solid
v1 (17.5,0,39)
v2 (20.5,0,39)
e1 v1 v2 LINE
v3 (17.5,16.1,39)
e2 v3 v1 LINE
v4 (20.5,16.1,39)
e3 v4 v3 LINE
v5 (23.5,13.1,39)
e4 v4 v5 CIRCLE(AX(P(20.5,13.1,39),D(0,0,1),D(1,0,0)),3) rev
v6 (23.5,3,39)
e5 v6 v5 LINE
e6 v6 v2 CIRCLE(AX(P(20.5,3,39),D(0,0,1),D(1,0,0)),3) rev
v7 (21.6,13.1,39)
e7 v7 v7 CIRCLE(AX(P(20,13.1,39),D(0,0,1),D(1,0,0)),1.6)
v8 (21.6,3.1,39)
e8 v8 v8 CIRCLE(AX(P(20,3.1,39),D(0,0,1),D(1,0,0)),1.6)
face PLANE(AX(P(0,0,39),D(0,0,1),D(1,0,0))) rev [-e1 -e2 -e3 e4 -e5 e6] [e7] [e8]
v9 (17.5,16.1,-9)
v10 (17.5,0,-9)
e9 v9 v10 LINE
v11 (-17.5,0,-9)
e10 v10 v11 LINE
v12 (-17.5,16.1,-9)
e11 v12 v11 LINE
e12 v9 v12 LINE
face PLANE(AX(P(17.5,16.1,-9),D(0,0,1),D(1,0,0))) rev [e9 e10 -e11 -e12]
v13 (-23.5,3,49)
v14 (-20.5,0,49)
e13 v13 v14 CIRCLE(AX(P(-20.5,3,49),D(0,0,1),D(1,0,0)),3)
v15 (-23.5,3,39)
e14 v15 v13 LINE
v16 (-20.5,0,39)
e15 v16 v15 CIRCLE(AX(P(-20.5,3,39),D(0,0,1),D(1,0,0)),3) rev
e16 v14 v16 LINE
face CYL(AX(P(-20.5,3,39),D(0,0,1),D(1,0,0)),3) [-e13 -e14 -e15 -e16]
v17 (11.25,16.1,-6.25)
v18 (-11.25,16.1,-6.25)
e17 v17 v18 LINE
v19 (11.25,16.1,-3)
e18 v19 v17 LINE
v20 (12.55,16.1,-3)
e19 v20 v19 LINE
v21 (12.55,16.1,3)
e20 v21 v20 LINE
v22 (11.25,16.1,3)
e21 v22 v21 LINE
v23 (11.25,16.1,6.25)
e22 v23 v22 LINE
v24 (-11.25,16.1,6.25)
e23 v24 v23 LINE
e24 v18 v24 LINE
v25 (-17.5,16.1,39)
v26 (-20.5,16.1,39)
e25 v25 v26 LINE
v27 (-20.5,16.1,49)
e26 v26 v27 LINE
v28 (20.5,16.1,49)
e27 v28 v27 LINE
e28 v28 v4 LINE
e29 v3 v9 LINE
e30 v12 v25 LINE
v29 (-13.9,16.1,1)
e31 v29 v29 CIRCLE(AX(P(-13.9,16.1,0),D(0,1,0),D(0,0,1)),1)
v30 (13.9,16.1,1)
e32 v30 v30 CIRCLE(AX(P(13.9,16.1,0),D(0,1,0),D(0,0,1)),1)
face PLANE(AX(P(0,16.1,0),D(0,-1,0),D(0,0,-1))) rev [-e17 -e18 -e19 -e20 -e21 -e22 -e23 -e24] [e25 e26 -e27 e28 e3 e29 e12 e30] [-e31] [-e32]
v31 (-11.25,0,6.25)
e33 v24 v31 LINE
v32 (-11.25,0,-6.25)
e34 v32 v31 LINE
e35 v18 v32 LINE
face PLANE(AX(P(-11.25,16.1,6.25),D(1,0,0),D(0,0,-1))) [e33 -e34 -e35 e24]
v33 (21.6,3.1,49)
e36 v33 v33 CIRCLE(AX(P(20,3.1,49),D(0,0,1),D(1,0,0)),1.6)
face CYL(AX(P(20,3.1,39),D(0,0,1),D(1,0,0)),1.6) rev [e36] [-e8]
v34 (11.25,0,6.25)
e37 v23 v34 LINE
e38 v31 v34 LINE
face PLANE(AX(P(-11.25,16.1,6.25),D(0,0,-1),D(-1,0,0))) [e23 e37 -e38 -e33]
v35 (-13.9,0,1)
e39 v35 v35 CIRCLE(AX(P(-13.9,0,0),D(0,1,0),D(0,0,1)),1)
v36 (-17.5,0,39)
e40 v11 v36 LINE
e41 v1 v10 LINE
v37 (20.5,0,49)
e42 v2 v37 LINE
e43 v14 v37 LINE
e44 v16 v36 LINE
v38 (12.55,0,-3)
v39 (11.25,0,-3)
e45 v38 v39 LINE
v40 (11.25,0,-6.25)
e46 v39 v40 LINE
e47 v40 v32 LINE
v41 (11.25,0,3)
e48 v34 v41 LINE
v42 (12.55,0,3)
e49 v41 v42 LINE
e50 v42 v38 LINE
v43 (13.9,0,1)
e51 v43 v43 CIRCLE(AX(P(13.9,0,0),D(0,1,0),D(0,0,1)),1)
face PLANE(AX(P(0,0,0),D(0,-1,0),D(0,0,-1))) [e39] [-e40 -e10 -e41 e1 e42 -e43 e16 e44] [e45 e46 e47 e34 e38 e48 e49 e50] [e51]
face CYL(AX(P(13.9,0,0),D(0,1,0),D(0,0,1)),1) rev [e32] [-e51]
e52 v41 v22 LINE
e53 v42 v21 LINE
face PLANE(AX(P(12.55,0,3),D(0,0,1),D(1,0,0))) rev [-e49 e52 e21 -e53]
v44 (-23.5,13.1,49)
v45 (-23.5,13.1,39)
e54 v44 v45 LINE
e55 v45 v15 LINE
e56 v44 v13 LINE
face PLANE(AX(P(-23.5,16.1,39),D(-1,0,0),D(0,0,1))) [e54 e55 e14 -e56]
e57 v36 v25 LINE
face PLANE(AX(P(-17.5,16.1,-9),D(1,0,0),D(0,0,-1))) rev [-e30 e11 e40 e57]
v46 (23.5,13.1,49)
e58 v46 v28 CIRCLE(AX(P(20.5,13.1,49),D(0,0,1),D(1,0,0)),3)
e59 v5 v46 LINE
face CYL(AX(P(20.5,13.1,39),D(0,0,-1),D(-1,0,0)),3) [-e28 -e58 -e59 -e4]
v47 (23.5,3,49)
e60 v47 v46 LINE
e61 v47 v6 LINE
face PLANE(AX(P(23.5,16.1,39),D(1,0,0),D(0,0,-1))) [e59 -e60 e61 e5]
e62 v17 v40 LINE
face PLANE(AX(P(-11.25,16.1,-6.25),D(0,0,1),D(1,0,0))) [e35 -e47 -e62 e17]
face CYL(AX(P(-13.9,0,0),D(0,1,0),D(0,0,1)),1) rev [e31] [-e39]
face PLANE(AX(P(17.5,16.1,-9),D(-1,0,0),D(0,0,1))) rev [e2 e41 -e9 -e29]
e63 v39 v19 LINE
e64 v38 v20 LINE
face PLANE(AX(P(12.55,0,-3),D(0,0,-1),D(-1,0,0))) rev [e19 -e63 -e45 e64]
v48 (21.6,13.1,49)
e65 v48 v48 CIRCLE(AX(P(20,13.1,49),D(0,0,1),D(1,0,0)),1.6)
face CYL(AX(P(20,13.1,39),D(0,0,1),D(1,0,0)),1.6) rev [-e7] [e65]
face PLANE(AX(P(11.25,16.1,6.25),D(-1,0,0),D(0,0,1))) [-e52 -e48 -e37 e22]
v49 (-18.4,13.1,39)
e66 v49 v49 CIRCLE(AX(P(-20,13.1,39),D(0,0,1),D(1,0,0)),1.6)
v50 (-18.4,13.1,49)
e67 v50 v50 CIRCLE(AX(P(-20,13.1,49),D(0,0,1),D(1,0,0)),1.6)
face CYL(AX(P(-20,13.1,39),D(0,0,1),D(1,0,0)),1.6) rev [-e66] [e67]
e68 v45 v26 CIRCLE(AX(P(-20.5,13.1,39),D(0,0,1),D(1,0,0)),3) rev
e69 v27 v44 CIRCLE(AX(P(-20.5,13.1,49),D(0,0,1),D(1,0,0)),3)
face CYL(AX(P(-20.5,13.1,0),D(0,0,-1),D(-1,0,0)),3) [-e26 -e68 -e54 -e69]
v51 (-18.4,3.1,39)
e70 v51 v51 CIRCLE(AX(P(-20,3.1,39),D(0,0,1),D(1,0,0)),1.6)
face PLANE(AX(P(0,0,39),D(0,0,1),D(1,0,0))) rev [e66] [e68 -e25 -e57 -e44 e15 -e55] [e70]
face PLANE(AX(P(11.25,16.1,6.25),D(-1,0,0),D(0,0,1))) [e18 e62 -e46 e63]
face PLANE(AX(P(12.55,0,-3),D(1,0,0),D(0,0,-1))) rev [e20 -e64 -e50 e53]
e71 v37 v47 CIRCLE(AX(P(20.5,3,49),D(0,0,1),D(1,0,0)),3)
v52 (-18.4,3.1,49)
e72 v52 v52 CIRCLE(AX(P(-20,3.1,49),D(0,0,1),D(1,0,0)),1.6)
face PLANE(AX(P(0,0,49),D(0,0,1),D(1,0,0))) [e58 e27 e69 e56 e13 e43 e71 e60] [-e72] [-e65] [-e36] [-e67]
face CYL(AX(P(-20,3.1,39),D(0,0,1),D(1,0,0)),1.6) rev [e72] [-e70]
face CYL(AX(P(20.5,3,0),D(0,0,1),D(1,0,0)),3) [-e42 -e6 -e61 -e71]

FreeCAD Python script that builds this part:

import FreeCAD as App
import Part
import Sketcher
Q = App.Units.Quantity


def edges_at(feature, points):
    """Names of the edges that pass closest to the given points."""
    edges = feature.Shape.Edges
    near = lambda p: min(range(len(edges)), key=lambda i: edges[i].distToShape(Part.Vertex(*p))[0])
    return sorted({f"Edge{near(p) + 1}" for p in points})


def add_polygon(sketch, points):
    """Adds a closed chain of lines whose ends are joined by coincident constraints."""
    first, n = sketch.GeometryCount, len(points)
    for a, b in zip(points, points[1:] + points[:1]):
        sketch.addGeometry(Part.LineSegment(App.Vector(*a, 0), App.Vector(*b, 0)), False)
    for i in range(n):
        sketch.addConstraint(Sketcher.Constraint("Coincident", first + i, 2, first + (i + 1) % n, 1))

doc = App.newDocument("Part")
params = doc.addObject("Spreadsheet::Sheet", "Params")
for row, (alias, value) in enumerate([
    ("sketch1_width", "35 mm"),
    ("sketch1_height", "18 mm"),
    ("sketch1_width2", "22.5 mm"),
    ("sketch1_height2", "12.5 mm"),
    ("pad1_length", "16.1 mm"),
    ("sketch2_diameter", "2 mm"),
    ("sketch3_height", "6 mm"),
    ("sketch3_width", "1.3 mm"),
    ("sketch4_diameter", "3.2 mm"),
    ("sketch4_width", "6 mm"),
    ("sketch4_height", "16.1 mm"),
    ("pad2_length", "10 mm"),
    ("sketch5_diameter", "3.2 mm"),
    ("sketch5_width", "6 mm"),
    ("sketch5_height", "16.1 mm"),
    ("pad3_length", "10 mm"),
    ("sketch6_width", "35 mm"),
    ("sketch6_height", "16.1 mm"),
    ("pad4_length", "40 mm"),
    ("fillet_radius", "3 mm"),
], start=1):
    params.set(f"A{row}", alias)
    params.set(f"B{row}", "=" + value)
    params.setAlias(f"B{row}", alias)

body = doc.addObject("PartDesign::Body", "Body")

sketch1 = body.newObject("Sketcher::SketchObject", "Sketch")
sketch1.AttachmentSupport = (doc.getObject("XZ_Plane"), [""])
sketch1.MapMode = "FlatFace"
add_polygon(sketch1, [(-18, -9), (-18, 9), (18, 9), (18, -9)])
add_polygon(sketch1, [(11, 6), (-11, 6), (-11, -6), (11, -6)])
sketch1.addConstraint(Sketcher.Constraint("Vertical", 0))
sketch1.addConstraint(Sketcher.Constraint("Horizontal", 1))
sketch1.addConstraint(Sketcher.Constraint("Vertical", 2))
sketch1.addConstraint(Sketcher.Constraint("Horizontal", 3))
sketch1.addConstraint(Sketcher.Constraint("Horizontal", 4))
sketch1.addConstraint(Sketcher.Constraint("Vertical", 5))
sketch1.addConstraint(Sketcher.Constraint("Horizontal", 6))
sketch1.addConstraint(Sketcher.Constraint("Vertical", 7))
sketch1.addConstraint(Sketcher.Constraint("Symmetric", 0, 2, 2, 2, -1, 1))
sketch1.addConstraint(Sketcher.Constraint("Symmetric", 4, 2, 6, 2, -1, 1))
sketch1.addConstraint(Sketcher.Constraint("DistanceX", 1, 1, 1, 2, Q("35 mm")))
sketch1.addConstraint(Sketcher.Constraint("DistanceY", 0, 1, 0, 2, Q("18 mm")))
sketch1.addConstraint(Sketcher.Constraint("DistanceX", 4, 2, 4, 1, Q("22.5 mm")))
sketch1.addConstraint(Sketcher.Constraint("DistanceY", 5, 2, 5, 1, Q("12.5 mm")))
sketch1.setExpression("Constraints[18]", "Params.sketch1_width")
sketch1.setExpression("Constraints[19]", "Params.sketch1_height")
sketch1.setExpression("Constraints[20]", "Params.sketch1_width2")
sketch1.setExpression("Constraints[21]", "Params.sketch1_height2")
pad1 = body.newObject("PartDesign::Pad", "Pad")
pad1.Profile = sketch1
pad1.setExpression("Length", "Params.pad1_length")
pad1.Reversed = True

sketch2 = body.newObject("Sketcher::SketchObject", "Sketch001")
sketch2.AttachmentSupport = (doc.getObject("XZ_Plane"), [""])
sketch2.MapMode = "FlatFace"
sketch2.AttachmentOffset = App.Placement(App.Vector(0, 0, -16.1), App.Rotation())
sketch2.addGeometry(Part.Circle(App.Vector(-13.9, 0, 0), App.Vector(0, 0, 1), 1), False)
sketch2.addGeometry(Part.Circle(App.Vector(13.9, 0, 0), App.Vector(0, 0, 1), 1), False)
sketch2.addConstraint(Sketcher.Constraint("Equal", 0, 1))
sketch2.addConstraint(Sketcher.Constraint("Symmetric", 0, 3, 1, 3, -1, 1))
sketch2.addConstraint(Sketcher.Constraint("PointOnObject", 0, 3, -1))
sketch2.addConstraint(Sketcher.Constraint("Diameter", 0, Q("2 mm")))
sketch2.addConstraint(Sketcher.Constraint("DistanceX", 0, 3, -1, 1, Q("13.9 mm")))
sketch2.setExpression("Constraints[3]", "Params.sketch2_diameter")
pocket1 = body.newObject("PartDesign::Pocket", "Pocket")
pocket1.Profile = sketch2
pocket1.Type = "ThroughAll"
pocket1.Reversed = True

sketch3 = body.newObject("Sketcher::SketchObject", "Sketch002")
sketch3.AttachmentSupport = (doc.getObject("XZ_Plane"), [""])
sketch3.MapMode = "FlatFace"
sketch3.AttachmentOffset = App.Placement(App.Vector(0, 0, -16.1), App.Rotation())
add_polygon(sketch3, [(11.2, -3), (11.2, 3), (12.6, 3), (12.6, -3)])
sketch3.addConstraint(Sketcher.Constraint("Vertical", 0))
sketch3.addConstraint(Sketcher.Constraint("Horizontal", 1))
sketch3.addConstraint(Sketcher.Constraint("Vertical", 2))
sketch3.addConstraint(Sketcher.Constraint("Horizontal", 3))
sketch3.addConstraint(Sketcher.Constraint("DistanceY", 0, 1, 0, 2, Q("6 mm")))
sketch3.addConstraint(Sketcher.Constraint("DistanceX", 1, 1, 1, 2, Q("1.3 mm")))
sketch3.addConstraint(Sketcher.Constraint("DistanceY", -1, 1, 0, 2, Q("3 mm")))
sketch3.addConstraint(Sketcher.Constraint("DistanceX", -1, 1, 0, 2, Q("11.25 mm")))
sketch3.setExpression("Constraints[8]", "Params.sketch3_height")
sketch3.setExpression("Constraints[9]", "Params.sketch3_width")
pocket2 = body.newObject("PartDesign::Pocket", "Pocket001")
pocket2.Profile = sketch3
pocket2.Type = "ThroughAll"
pocket2.Reversed = True
body2 = doc.addObject("PartDesign::Body", "Body001")

sketch4 = body2.newObject("Sketcher::SketchObject", "Sketch003")
sketch4.AttachmentSupport = (doc.getObject("XY_Plane001"), [""])
sketch4.MapMode = "FlatFace"
sketch4.AttachmentOffset = App.Placement(App.Vector(0, 0, 49), App.Rotation())
add_polygon(sketch4, [(17.5, 16.1), (17.5, 0), (23.5, 0), (23.5, 16.1)])
sketch4.addGeometry(Part.Circle(App.Vector(20, 3.1, 0), App.Vector(0, 0, 1), 1.6), False)
sketch4.addGeometry(Part.Circle(App.Vector(20, 13.1, 0), App.Vector(0, 0, 1), 1.6), False)
sketch4.addConstraint(Sketcher.Constraint("Vertical", 0))
sketch4.addConstraint(Sketcher.Constraint("Horizontal", 1))
sketch4.addConstraint(Sketcher.Constraint("Vertical", 2))
sketch4.addConstraint(Sketcher.Constraint("Horizontal", 3))
sketch4.addConstraint(Sketcher.Constraint("Equal", 4, 5))
sketch4.addConstraint(Sketcher.Constraint("PointOnObject", 0, 2, -1))
sketch4.addConstraint(Sketcher.Constraint("Vertical", 4, 3, 5, 3))
sketch4.addConstraint(Sketcher.Constraint("Diameter", 4, Q("3.2 mm")))
sketch4.addConstraint(Sketcher.Constraint("DistanceX", 1, 1, 1, 2, Q("6 mm")))
sketch4.addConstraint(Sketcher.Constraint("DistanceY", 0, 2, 0, 1, Q("16.1 mm")))
sketch4.addConstraint(Sketcher.Constraint("DistanceX", -1, 1, 4, 3, Q("20 mm")))
sketch4.addConstraint(Sketcher.Constraint("DistanceY", 4, 3, 5, 3, Q("10 mm")))
sketch4.addConstraint(Sketcher.Constraint("DistanceY", 5, 3, 2, 2, Q("3 mm")))
sketch4.addConstraint(Sketcher.Constraint("DistanceX", -1, 1, 0, 2, Q("17.5 mm")))
sketch4.setExpression("Constraints[11]", "Params.sketch4_diameter")
sketch4.setExpression("Constraints[12]", "Params.sketch4_width")
sketch4.setExpression("Constraints[13]", "Params.sketch4_height")
pad2 = body2.newObject("PartDesign::Pad", "Pad001")
pad2.Profile = sketch4
pad2.setExpression("Length", "Params.pad2_length")
pad2.Reversed = True
body3 = doc.addObject("PartDesign::Body", "Body002")

sketch5 = body3.newObject("Sketcher::SketchObject", "Sketch004")
sketch5.AttachmentSupport = (doc.getObject("XY_Plane002"), [""])
sketch5.MapMode = "FlatFace"
sketch5.AttachmentOffset = App.Placement(App.Vector(0, 0, 49), App.Rotation())
add_polygon(sketch5, [(-23.5, 16.1), (-23.5, 0), (-17.5, 0), (-17.5, 16.1)])
sketch5.addGeometry(Part.Circle(App.Vector(-20, 3.1, 0), App.Vector(0, 0, 1), 1.6), False)
sketch5.addGeometry(Part.Circle(App.Vector(-20, 13.1, 0), App.Vector(0, 0, 1), 1.6), False)
sketch5.addConstraint(Sketcher.Constraint("Vertical", 0))
sketch5.addConstraint(Sketcher.Constraint("Horizontal", 1))
sketch5.addConstraint(Sketcher.Constraint("Vertical", 2))
sketch5.addConstraint(Sketcher.Constraint("Horizontal", 3))
sketch5.addConstraint(Sketcher.Constraint("Equal", 4, 5))
sketch5.addConstraint(Sketcher.Constraint("PointOnObject", 0, 2, -1))
sketch5.addConstraint(Sketcher.Constraint("Vertical", 4, 3, 5, 3))
sketch5.addConstraint(Sketcher.Constraint("Diameter", 4, Q("3.2 mm")))
sketch5.addConstraint(Sketcher.Constraint("DistanceX", 1, 1, 1, 2, Q("6 mm")))
sketch5.addConstraint(Sketcher.Constraint("DistanceY", 0, 2, 0, 1, Q("16.1 mm")))
sketch5.addConstraint(Sketcher.Constraint("DistanceX", 4, 3, -1, 1, Q("20 mm")))
sketch5.addConstraint(Sketcher.Constraint("DistanceY", 4, 3, 5, 3, Q("10 mm")))
sketch5.addConstraint(Sketcher.Constraint("DistanceY", 5, 3, 2, 2, Q("3 mm")))
sketch5.addConstraint(Sketcher.Constraint("DistanceX", 0, 2, -1, 1, Q("23.5 mm")))
sketch5.setExpression("Constraints[11]", "Params.sketch5_diameter")
sketch5.setExpression("Constraints[12]", "Params.sketch5_width")
sketch5.setExpression("Constraints[13]", "Params.sketch5_height")
pad3 = body3.newObject("PartDesign::Pad", "Pad002")
pad3.Profile = sketch5
pad3.setExpression("Length", "Params.pad3_length")
pad3.Reversed = True
body.AllowCompound = True
doc.recompute()

boolean = body.newObject("PartDesign::Boolean", "Boolean")
boolean.Type = "Fuse"
boolean.addObjects([body2])
doc.recompute()

boolean2 = body.newObject("PartDesign::Boolean", "Boolean001")
boolean2.Type = "Fuse"
boolean2.addObjects([body3])

sketch6 = body.newObject("Sketcher::SketchObject", "Sketch005")
sketch6.AttachmentSupport = (doc.getObject("XY_Plane"), [""])
sketch6.MapMode = "FlatFace"
sketch6.AttachmentOffset = App.Placement(App.Vector(0, 0, 49), App.Rotation())
add_polygon(sketch6, [(-18, 16), (-18, 0), (18, 0), (18, 16)])
sketch6.addConstraint(Sketcher.Constraint("Vertical", 0))
sketch6.addConstraint(Sketcher.Constraint("Horizontal", 1))
sketch6.addConstraint(Sketcher.Constraint("Vertical", 2))
sketch6.addConstraint(Sketcher.Constraint("Horizontal", 3))
sketch6.addConstraint(Sketcher.Constraint("Symmetric", 0, 2, 1, 2, -1, 1))
sketch6.addConstraint(Sketcher.Constraint("DistanceX", 1, 1, 1, 2, Q("35 mm")))
sketch6.addConstraint(Sketcher.Constraint("DistanceY", 0, 2, 0, 1, Q("16.1 mm")))
sketch6.setExpression("Constraints[9]", "Params.sketch6_width")
sketch6.setExpression("Constraints[10]", "Params.sketch6_height")
pad4 = body.newObject("PartDesign::Pad", "Pad003")
pad4.Profile = sketch6
pad4.setExpression("Length", "Params.pad4_length")
pad4.Reversed = True
doc.recompute()

fillet = body.newObject("PartDesign::Fillet", "Fillet")
fillet.Base = (pad4, edges_at(pad4, [
    (23.5, 16.1, 44),
    (23.5, 0, 44),
    (-23.5, 16.1, 44),
    (-23.5, 0, 44),
]))
fillet.setExpression("Radius", "Params.fillet_radius")

doc.recompute()
